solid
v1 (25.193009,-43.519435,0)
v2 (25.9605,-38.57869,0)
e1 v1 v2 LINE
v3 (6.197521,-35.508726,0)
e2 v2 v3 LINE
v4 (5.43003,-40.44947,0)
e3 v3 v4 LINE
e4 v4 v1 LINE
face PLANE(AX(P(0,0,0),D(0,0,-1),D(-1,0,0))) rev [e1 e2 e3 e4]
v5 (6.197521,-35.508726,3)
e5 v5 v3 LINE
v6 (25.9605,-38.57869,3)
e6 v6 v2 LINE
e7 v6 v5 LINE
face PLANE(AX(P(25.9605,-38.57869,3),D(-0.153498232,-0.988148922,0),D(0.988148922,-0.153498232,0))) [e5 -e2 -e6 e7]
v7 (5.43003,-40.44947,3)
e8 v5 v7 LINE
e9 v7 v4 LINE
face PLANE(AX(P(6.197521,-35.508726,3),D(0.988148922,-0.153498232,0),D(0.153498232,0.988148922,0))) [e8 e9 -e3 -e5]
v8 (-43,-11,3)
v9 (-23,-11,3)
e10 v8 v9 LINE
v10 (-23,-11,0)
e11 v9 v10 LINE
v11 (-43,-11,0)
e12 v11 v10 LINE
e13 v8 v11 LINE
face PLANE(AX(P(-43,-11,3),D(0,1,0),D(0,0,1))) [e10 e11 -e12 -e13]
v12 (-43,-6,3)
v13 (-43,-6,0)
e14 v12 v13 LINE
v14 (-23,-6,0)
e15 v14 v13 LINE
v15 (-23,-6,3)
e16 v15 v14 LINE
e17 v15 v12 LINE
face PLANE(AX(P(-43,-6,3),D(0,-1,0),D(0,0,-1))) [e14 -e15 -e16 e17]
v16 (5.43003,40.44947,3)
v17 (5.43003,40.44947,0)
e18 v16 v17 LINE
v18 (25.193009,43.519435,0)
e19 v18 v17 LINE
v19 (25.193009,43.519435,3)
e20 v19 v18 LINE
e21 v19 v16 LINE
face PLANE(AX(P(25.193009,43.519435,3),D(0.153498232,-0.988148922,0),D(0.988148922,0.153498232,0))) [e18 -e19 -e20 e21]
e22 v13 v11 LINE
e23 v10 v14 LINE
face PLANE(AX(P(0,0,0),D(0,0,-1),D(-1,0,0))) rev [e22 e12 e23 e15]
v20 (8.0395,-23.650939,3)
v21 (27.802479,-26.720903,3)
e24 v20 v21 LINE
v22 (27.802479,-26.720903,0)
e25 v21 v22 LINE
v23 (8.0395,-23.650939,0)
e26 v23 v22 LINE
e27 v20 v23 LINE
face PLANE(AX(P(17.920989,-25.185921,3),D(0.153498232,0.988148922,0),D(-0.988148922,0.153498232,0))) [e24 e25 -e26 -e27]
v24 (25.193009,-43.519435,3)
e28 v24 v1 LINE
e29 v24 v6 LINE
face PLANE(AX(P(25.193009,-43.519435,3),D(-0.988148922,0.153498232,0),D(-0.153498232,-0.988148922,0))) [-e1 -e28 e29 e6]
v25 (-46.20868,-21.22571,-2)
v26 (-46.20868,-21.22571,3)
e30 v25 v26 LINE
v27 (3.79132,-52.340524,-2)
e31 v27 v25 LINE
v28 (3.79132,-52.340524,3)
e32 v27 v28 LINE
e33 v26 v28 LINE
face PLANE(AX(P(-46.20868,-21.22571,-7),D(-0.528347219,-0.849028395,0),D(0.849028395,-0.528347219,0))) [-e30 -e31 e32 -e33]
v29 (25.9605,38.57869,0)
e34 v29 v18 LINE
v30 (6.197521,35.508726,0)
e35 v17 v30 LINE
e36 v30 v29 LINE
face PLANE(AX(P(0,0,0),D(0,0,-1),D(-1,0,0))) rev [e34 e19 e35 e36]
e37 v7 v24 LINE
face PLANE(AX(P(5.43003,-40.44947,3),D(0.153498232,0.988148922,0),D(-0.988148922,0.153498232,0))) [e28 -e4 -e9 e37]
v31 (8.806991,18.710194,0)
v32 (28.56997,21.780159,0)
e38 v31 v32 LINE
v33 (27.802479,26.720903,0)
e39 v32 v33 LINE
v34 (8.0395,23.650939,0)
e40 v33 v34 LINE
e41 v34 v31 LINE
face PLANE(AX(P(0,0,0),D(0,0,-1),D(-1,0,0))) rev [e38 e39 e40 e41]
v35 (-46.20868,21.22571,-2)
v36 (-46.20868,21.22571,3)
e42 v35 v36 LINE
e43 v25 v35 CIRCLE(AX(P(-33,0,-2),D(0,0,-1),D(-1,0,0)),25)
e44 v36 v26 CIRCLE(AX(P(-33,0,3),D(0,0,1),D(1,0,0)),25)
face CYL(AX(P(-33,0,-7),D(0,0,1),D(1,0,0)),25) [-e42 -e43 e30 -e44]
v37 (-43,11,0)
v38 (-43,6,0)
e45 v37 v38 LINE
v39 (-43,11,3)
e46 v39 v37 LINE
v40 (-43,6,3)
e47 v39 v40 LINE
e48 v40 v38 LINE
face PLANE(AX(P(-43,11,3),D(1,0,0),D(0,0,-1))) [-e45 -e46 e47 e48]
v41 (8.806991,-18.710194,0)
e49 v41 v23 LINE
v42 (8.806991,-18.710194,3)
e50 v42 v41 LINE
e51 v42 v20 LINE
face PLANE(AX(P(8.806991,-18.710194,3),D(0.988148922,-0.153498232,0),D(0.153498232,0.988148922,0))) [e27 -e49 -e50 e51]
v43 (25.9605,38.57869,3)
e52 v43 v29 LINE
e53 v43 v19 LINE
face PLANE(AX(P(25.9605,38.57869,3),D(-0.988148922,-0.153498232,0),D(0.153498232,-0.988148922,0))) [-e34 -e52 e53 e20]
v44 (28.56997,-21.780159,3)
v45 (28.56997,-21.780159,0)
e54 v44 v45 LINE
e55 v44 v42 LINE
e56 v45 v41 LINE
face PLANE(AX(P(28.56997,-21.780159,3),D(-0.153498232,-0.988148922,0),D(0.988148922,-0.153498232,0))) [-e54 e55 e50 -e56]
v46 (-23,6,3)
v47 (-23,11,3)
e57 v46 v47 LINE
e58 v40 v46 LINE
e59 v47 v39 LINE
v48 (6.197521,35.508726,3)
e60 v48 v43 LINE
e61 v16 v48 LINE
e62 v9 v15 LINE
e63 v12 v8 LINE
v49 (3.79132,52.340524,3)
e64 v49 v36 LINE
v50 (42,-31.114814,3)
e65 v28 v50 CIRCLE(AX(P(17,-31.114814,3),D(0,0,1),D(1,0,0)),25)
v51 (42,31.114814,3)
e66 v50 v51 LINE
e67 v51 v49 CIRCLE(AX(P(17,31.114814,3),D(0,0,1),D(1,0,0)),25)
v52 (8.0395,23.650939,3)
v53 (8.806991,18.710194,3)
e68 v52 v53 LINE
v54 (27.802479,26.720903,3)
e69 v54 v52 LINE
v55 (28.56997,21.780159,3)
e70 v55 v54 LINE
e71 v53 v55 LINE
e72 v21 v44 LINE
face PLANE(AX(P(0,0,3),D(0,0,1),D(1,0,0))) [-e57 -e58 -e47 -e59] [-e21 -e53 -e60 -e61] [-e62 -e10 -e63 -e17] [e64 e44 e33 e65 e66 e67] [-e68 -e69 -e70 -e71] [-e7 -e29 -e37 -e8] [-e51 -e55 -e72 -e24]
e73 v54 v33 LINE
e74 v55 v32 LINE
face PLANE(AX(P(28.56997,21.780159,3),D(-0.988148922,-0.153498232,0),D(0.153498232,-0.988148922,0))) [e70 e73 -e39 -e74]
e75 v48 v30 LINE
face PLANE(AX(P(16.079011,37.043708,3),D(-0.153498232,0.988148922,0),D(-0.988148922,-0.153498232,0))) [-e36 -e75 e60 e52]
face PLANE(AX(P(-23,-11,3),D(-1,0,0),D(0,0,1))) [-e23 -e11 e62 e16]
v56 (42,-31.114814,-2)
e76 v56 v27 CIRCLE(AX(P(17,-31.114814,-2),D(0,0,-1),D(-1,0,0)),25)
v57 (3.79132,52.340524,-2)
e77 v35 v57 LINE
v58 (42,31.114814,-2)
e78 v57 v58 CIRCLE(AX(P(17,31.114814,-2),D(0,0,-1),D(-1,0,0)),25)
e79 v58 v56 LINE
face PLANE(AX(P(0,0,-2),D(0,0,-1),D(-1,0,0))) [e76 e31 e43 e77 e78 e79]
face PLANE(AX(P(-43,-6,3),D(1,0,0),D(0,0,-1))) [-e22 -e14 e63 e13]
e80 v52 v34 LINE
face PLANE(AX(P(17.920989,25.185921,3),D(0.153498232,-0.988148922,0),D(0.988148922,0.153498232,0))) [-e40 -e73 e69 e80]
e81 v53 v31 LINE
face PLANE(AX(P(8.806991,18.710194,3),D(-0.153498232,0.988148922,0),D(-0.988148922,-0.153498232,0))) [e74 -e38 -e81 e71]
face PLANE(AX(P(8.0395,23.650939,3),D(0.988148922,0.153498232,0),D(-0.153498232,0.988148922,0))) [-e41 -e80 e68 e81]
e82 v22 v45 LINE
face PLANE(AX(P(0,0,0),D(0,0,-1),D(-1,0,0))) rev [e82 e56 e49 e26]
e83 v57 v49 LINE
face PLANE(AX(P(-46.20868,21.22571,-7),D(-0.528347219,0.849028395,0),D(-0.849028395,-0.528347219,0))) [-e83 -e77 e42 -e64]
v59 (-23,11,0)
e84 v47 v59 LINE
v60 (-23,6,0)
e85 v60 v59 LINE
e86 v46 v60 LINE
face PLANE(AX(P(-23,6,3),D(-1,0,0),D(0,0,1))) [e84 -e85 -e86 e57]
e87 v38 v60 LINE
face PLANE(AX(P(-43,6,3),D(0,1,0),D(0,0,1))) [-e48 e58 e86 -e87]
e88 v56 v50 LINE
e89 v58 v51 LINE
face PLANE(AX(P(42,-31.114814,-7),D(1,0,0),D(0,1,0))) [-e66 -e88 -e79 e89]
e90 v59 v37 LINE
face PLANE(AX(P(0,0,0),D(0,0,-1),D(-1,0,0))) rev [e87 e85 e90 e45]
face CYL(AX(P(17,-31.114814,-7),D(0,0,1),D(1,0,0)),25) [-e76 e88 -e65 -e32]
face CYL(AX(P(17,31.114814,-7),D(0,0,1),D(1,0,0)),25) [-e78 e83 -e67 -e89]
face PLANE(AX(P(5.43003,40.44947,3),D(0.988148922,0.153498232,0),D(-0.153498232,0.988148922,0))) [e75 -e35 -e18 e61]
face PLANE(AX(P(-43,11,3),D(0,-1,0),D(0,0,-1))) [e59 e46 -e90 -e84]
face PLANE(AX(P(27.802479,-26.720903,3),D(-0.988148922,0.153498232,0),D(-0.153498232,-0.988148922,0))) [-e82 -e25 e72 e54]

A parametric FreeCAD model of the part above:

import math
import FreeCAD as App
import Part
import Sketcher

doc = App.newDocument("Part")
body = doc.addObject("PartDesign::Body", "Body")

# Sketch on XY plane
sketch1 = body.newObject("Sketcher::SketchObject", "Sketch")
sketch1.AttachmentSupport = (doc.getObject("XY_Plane"), [""])
sketch1.MapMode = "FlatFace"
sketch1.addGeometry(Part.Circle(App.Vector(0, 0, 0), App.Vector(0, 0, 1), 65), False)
sketch1.addGeometry(Part.LineSegment(App.Vector(-23, -11, 0), App.Vector(-43, -11, 0)), False)
sketch1.addGeometry(Part.LineSegment(App.Vector(-43, -11, 0), App.Vector(-43, -6, 0)), False)
sketch1.addGeometry(Part.LineSegment(App.Vector(-43, -6, 0), App.Vector(-23, -6, 0)), False)
sketch1.addGeometry(Part.LineSegment(App.Vector(-23, -6, 0), App.Vector(-23, -11, 0)), False)
sketch1.addGeometry(Part.LineSegment(App.Vector(5, -40, 0), App.Vector(6, -36, 0)), False)
sketch1.addGeometry(Part.LineSegment(App.Vector(6, -36, 0), App.Vector(26, -39, 0)), False)
sketch1.addGeometry(Part.LineSegment(App.Vector(26, -39, 0), App.Vector(25, -44, 0)), False)
sketch1.addGeometry(Part.LineSegment(App.Vector(25, -44, 0), App.Vector(5, -40, 0)), False)
sketch1.addGeometry(Part.LineSegment(App.Vector(8, -24, 0), App.Vector(9, -19, 0)), False)
sketch1.addGeometry(Part.LineSegment(App.Vector(9, -19, 0), App.Vector(29, -22, 0)), False)
sketch1.addGeometry(Part.LineSegment(App.Vector(29, -22, 0), App.Vector(28, -27, 0)), False)
sketch1.addGeometry(Part.LineSegment(App.Vector(28, -27, 0), App.Vector(8, -24, 0)), False)
sketch1.addGeometry(Part.LineSegment(App.Vector(-23, 6, 0), App.Vector(-43, 6, 0)), False)
sketch1.addGeometry(Part.LineSegment(App.Vector(-43, 6, 0), App.Vector(-43, 11, 0)), False)
sketch1.addGeometry(Part.LineSegment(App.Vector(-43, 11, 0), App.Vector(-23, 11, 0)), False)
sketch1.addGeometry(Part.LineSegment(App.Vector(-23, 11, 0), App.Vector(-23, 6, 0)), False)
sketch1.addGeometry(Part.LineSegment(App.Vector(8, 24, 0), App.Vector(28, 27, 0)), False)
sketch1.addGeometry(Part.LineSegment(App.Vector(28, 27, 0), App.Vector(29, 22, 0)), False)
sketch1.addGeometry(Part.LineSegment(App.Vector(29, 22, 0), App.Vector(9, 19, 0)), False)
sketch1.addGeometry(Part.LineSegment(App.Vector(9, 19, 0), App.Vector(8, 24, 0)), False)
sketch1.addGeometry(Part.LineSegment(App.Vector(26, 39, 0), App.Vector(6, 36, 0)), False)
sketch1.addGeometry(Part.LineSegment(App.Vector(6, 36, 0), App.Vector(5, 40, 0)), False)
sketch1.addGeometry(Part.LineSegment(App.Vector(5, 40, 0), App.Vector(25, 44, 0)), False)
sketch1.addGeometry(Part.LineSegment(App.Vector(25, 44, 0), App.Vector(26, 39, 0)), False)
sketch1.addConstraint(Sketcher.Constraint("Coincident", 1, 2, 2, 1))
sketch1.addConstraint(Sketcher.Constraint("Coincident", 2, 2, 3, 1))
sketch1.addConstraint(Sketcher.Constraint("Coincident", 3, 2, 4, 1))
sketch1.addConstraint(Sketcher.Constraint("Coincident", 4, 2, 1, 1))
sketch1.addConstraint(Sketcher.Constraint("Coincident", 5, 2, 6, 1))
sketch1.addConstraint(Sketcher.Constraint("Coincident", 6, 2, 7, 1))
sketch1.addConstraint(Sketcher.Constraint("Coincident", 7, 2, 8, 1))
sketch1.addConstraint(Sketcher.Constraint("Coincident", 8, 2, 5, 1))
sketch1.addConstraint(Sketcher.Constraint("Coincident", 9, 2, 10, 1))
sketch1.addConstraint(Sketcher.Constraint("Coincident", 10, 2, 11, 1))
sketch1.addConstraint(Sketcher.Constraint("Coincident", 11, 2, 12, 1))
sketch1.addConstraint(Sketcher.Constraint("Coincident", 12, 2, 9, 1))
sketch1.addConstraint(Sketcher.Constraint("Coincident", 13, 2, 14, 1))
sketch1.addConstraint(Sketcher.Constraint("Coincident", 14, 2, 15, 1))
sketch1.addConstraint(Sketcher.Constraint("Coincident", 15, 2, 16, 1))
sketch1.addConstraint(Sketcher.Constraint("Coincident", 16, 2, 13, 1))
sketch1.addConstraint(Sketcher.Constraint("Coincident", 17, 2, 18, 1))
sketch1.addConstraint(Sketcher.Constraint("Coincident", 18, 2, 19, 1))
sketch1.addConstraint(Sketcher.Constraint("Coincident", 19, 2, 20, 1))
sketch1.addConstraint(Sketcher.Constraint("Coincident", 20, 2, 17, 1))
sketch1.addConstraint(Sketcher.Constraint("Coincident", 21, 2, 22, 1))
sketch1.addConstraint(Sketcher.Constraint("Coincident", 22, 2, 23, 1))
sketch1.addConstraint(Sketcher.Constraint("Coincident", 23, 2, 24, 1))
sketch1.addConstraint(Sketcher.Constraint("Coincident", 24, 2, 21, 1))
sketch1.addConstraint(Sketcher.Constraint("Horizontal", 1))
sketch1.addConstraint(Sketcher.Constraint("Vertical", 2))
sketch1.addConstraint(Sketcher.Constraint("Horizontal", 3))
sketch1.addConstraint(Sketcher.Constraint("Vertical", 4))
sketch1.addConstraint(Sketcher.Constraint("Horizontal", 13))
sketch1.addConstraint(Sketcher.Constraint("Vertical", 14))
sketch1.addConstraint(Sketcher.Constraint("Horizontal", 15))
sketch1.addConstraint(Sketcher.Constraint("Vertical", 16))
sketch1.addConstraint(Sketcher.Constraint("Coincident", 0, 3, -1, 1))
sketch1.addConstraint(Sketcher.Constraint("Symmetric", 2, 2, 13, 2, -1))
sketch1.addConstraint(Sketcher.Constraint("Symmetric", 4, 2, 15, 2, -1))
sketch1.addConstraint(Sketcher.Constraint("Symmetric", 11, 2, 17, 2, -1))
sketch1.addConstraint(Sketcher.Constraint("Symmetric", 10, 2, 18, 2, -1))
sketch1.addConstraint(Sketcher.Constraint("Symmetric", 9, 2, 19, 2, -1))
sketch1.addConstraint(Sketcher.Constraint("Symmetric", 12, 2, 20, 2, -1))
sketch1.addConstraint(Sketcher.Constraint("Symmetric", 5, 2, 21, 2, -1))
sketch1.addConstraint(Sketcher.Constraint("Symmetric", 8, 2, 22, 2, -1))
sketch1.addConstraint(Sketcher.Constraint("Symmetric", 7, 2, 23, 2, -1))
sketch1.addConstraint(Sketcher.Constraint("Symmetric", 6, 2, 24, 2, -1))
sketch1.addConstraint(Sketcher.Constraint("Perpendicular", 5, 6))
sketch1.addConstraint(Sketcher.Constraint("Perpendicular", 6, 7))
sketch1.addConstraint(Sketcher.Constraint("Perpendicular", 7, 8))
sketch1.addConstraint(Sketcher.Constraint("Perpendicular", 8, 9))
sketch1.addConstraint(Sketcher.Constraint("Perpendicular", 9, 10))
sketch1.addConstraint(Sketcher.Constraint("Perpendicular", 10, 11))
sketch1.addConstraint(Sketcher.Constraint("Perpendicular", 11, 12))
sketch1.addConstraint(Sketcher.Constraint("Equal", 7, 9))
sketch1.addConstraint(Sketcher.Constraint("Equal", 8, 10))
sketch1.addConstraint(Sketcher.Constraint("Diameter", 0, 130.0))
sketch1.addConstraint(Sketcher.Constraint("DistanceX", 1, 2, 1, 1, 20.0))
sketch1.addConstraint(Sketcher.Constraint("DistanceY", 2, 1, 2, 2, 5.0))
sketch1.addConstraint(Sketcher.Constraint("Distance", 5, 5.0))
sketch1.addConstraint(Sketcher.Constraint("Distance", 6, 20.0))
sketch1.addConstraint(Sketcher.Constraint("DistanceX", 1, 2, -1, 1, 43.0))
sketch1.addConstraint(Sketcher.Constraint("DistanceY", 1, 2, -1, 1, 11.0))
sketch1.addConstraint(Sketcher.Constraint("DistanceX", -1, 1, 6, 2, 25.9605))
sketch1.addConstraint(Sketcher.Constraint("DistanceX", -1, 1, 12, 2, 8.0395))
sketch1.addConstraint(Sketcher.Constraint("DistanceX", -1, 1, 5, 2, 6.197521))
sketch1.addConstraint(Sketcher.Constraint("DistanceY", 6, 2, -1, 1, 38.57869))
sketch1.addConstraint(Sketcher.Constraint("DistanceY", 10, 2, -1, 1, 21.780159))
pad1 = body.newObject("PartDesign::Pad", "Pad")
pad1.Profile = sketch1
pad1.Length = 3

# Sketch on XY plane
sketch2 = body.newObject("Sketcher::SketchObject", "Sketch001")
sketch2.AttachmentSupport = (doc.getObject("XY_Plane"), [""])
sketch2.MapMode = "FlatFace"
sketch2.AttachmentOffset = App.Placement(App.Vector(0, 0, -2), App.Rotation())
sketch2.addGeometry(Part.Circle(App.Vector(0, 0, 0), App.Vector(0, 0, 1), 65), False)
sketch2.addConstraint(Sketcher.Constraint("Coincident", 0, 3, -1, 1))
sketch2.addConstraint(Sketcher.Constraint("Diameter", 0, 130.0))
pad2 = body.newObject("PartDesign::Pad", "Pad001")
pad2.Profile = sketch2
pad2.Length = 2

# Sketch on XY plane
sketch3 = body.newObject("Sketcher::SketchObject", "Sketch002")
sketch3.AttachmentSupport = (doc.getObject("XY_Plane"), [""])
sketch3.MapMode = "FlatFace"
sketch3.AttachmentOffset = App.Placement(App.Vector(0, 0, 3), App.Rotation())
sketch3.addGeometry(Part.LineSegment(App.Vector(-84, 84, 0), App.Vector(-84, -84, 0)), False)
sketch3.addGeometry(Part.LineSegment(App.Vector(-84, -84, 0), App.Vector(84, -84, 0)), False)
sketch3.addGeometry(Part.LineSegment(App.Vector(84, -84, 0), App.Vector(84, 84, 0)), False)
sketch3.addGeometry(Part.LineSegment(App.Vector(84, 84, 0), App.Vector(-84, 84, 0)), False)
sketch3.addGeometry(Part.LineSegment(App.Vector(4, -52, 0), App.Vector(-46, -21, 0)), False)
sketch3.addGeometry(Part.ArcOfCircle(Part.Circle(App.Vector(-33, 0, 0), App.Vector(0, 0, 1), 25), math.radians(122), math.radians(238)), False)
sketch3.addGeometry(Part.LineSegment(App.Vector(-46, 21, 0), App.Vector(4, 52, 0)), False)
sketch3.addGeometry(Part.ArcOfCircle(Part.Circle(App.Vector(17, 31, 0), App.Vector(0, 0, 1), 25), math.radians(0), math.radians(122)), False)
sketch3.addGeometry(Part.LineSegment(App.Vector(42, 31, 0), App.Vector(42, -31, 0)), False)
sketch3.addGeometry(Part.ArcOfCircle(Part.Circle(App.Vector(17, -31, 0), App.Vector(0, 0, 1), 25), math.radians(-122), math.radians(0)), False)
sketch3.addConstraint(Sketcher.Constraint("Coincident", 0, 2, 1, 1))
sketch3.addConstraint(Sketcher.Constraint("Coincident", 1, 2, 2, 1))
sketch3.addConstraint(Sketcher.Constraint("Coincident", 2, 2, 3, 1))
sketch3.addConstraint(Sketcher.Constraint("Coincident", 3, 2, 0, 1))
sketch3.addConstraint(Sketcher.Constraint("Tangent", 4, 2, 5, 2))
sketch3.addConstraint(Sketcher.Constraint("Tangent", 5, 1, 6, 1))
sketch3.addConstraint(Sketcher.Constraint("Tangent", 6, 2, 7, 2))
sketch3.addConstraint(Sketcher.Constraint("Tangent", 7, 1, 8, 1))
sketch3.addConstraint(Sketcher.Constraint("Tangent", 8, 2, 9, 2))
sketch3.addConstraint(Sketcher.Constraint("Tangent", 9, 1, 4, 1))
sketch3.addConstraint(Sketcher.Constraint("Vertical", 0))
sketch3.addConstraint(Sketcher.Constraint("Horizontal", 1))
sketch3.addConstraint(Sketcher.Constraint("Vertical", 2))
sketch3.addConstraint(Sketcher.Constraint("Horizontal", 3))
sketch3.addConstraint(Sketcher.Constraint("Vertical", 8))
sketch3.addConstraint(Sketcher.Constraint("Equal", 5, 7))
sketch3.addConstraint(Sketcher.Constraint("Equal", 7, 9))
sketch3.addConstraint(Sketcher.Constraint("Symmetric", 0, 2, 2, 2, -1, 1))
sketch3.addConstraint(Sketcher.Constraint("Symmetric", 4, 2, 5, 1, -1))
sketch3.addConstraint(Sketcher.Constraint("Equal", 3, 0))
sketch3.addConstraint(Sketcher.Constraint("Radius", 5, 25.0))
sketch3.addConstraint(Sketcher.Constraint("DistanceX", 5, 3, -1, 1, 33.0))
sketch3.addConstraint(Sketcher.Constraint("DistanceX", -1, 1, 7, 3, 17.0))
sketch3.addConstraint(Sketcher.Constraint("DistanceX", 1, 1, 1, 2, 168.784))
sketch3.addConstraint(Sketcher.Constraint("DistanceY", 8, 2, 8, 1, 62.229629))
pocket1 = body.newObject("PartDesign::Pocket", "Pocket")
pocket1.Profile = sketch3
pocket1.Length = 10

doc.recompute()
